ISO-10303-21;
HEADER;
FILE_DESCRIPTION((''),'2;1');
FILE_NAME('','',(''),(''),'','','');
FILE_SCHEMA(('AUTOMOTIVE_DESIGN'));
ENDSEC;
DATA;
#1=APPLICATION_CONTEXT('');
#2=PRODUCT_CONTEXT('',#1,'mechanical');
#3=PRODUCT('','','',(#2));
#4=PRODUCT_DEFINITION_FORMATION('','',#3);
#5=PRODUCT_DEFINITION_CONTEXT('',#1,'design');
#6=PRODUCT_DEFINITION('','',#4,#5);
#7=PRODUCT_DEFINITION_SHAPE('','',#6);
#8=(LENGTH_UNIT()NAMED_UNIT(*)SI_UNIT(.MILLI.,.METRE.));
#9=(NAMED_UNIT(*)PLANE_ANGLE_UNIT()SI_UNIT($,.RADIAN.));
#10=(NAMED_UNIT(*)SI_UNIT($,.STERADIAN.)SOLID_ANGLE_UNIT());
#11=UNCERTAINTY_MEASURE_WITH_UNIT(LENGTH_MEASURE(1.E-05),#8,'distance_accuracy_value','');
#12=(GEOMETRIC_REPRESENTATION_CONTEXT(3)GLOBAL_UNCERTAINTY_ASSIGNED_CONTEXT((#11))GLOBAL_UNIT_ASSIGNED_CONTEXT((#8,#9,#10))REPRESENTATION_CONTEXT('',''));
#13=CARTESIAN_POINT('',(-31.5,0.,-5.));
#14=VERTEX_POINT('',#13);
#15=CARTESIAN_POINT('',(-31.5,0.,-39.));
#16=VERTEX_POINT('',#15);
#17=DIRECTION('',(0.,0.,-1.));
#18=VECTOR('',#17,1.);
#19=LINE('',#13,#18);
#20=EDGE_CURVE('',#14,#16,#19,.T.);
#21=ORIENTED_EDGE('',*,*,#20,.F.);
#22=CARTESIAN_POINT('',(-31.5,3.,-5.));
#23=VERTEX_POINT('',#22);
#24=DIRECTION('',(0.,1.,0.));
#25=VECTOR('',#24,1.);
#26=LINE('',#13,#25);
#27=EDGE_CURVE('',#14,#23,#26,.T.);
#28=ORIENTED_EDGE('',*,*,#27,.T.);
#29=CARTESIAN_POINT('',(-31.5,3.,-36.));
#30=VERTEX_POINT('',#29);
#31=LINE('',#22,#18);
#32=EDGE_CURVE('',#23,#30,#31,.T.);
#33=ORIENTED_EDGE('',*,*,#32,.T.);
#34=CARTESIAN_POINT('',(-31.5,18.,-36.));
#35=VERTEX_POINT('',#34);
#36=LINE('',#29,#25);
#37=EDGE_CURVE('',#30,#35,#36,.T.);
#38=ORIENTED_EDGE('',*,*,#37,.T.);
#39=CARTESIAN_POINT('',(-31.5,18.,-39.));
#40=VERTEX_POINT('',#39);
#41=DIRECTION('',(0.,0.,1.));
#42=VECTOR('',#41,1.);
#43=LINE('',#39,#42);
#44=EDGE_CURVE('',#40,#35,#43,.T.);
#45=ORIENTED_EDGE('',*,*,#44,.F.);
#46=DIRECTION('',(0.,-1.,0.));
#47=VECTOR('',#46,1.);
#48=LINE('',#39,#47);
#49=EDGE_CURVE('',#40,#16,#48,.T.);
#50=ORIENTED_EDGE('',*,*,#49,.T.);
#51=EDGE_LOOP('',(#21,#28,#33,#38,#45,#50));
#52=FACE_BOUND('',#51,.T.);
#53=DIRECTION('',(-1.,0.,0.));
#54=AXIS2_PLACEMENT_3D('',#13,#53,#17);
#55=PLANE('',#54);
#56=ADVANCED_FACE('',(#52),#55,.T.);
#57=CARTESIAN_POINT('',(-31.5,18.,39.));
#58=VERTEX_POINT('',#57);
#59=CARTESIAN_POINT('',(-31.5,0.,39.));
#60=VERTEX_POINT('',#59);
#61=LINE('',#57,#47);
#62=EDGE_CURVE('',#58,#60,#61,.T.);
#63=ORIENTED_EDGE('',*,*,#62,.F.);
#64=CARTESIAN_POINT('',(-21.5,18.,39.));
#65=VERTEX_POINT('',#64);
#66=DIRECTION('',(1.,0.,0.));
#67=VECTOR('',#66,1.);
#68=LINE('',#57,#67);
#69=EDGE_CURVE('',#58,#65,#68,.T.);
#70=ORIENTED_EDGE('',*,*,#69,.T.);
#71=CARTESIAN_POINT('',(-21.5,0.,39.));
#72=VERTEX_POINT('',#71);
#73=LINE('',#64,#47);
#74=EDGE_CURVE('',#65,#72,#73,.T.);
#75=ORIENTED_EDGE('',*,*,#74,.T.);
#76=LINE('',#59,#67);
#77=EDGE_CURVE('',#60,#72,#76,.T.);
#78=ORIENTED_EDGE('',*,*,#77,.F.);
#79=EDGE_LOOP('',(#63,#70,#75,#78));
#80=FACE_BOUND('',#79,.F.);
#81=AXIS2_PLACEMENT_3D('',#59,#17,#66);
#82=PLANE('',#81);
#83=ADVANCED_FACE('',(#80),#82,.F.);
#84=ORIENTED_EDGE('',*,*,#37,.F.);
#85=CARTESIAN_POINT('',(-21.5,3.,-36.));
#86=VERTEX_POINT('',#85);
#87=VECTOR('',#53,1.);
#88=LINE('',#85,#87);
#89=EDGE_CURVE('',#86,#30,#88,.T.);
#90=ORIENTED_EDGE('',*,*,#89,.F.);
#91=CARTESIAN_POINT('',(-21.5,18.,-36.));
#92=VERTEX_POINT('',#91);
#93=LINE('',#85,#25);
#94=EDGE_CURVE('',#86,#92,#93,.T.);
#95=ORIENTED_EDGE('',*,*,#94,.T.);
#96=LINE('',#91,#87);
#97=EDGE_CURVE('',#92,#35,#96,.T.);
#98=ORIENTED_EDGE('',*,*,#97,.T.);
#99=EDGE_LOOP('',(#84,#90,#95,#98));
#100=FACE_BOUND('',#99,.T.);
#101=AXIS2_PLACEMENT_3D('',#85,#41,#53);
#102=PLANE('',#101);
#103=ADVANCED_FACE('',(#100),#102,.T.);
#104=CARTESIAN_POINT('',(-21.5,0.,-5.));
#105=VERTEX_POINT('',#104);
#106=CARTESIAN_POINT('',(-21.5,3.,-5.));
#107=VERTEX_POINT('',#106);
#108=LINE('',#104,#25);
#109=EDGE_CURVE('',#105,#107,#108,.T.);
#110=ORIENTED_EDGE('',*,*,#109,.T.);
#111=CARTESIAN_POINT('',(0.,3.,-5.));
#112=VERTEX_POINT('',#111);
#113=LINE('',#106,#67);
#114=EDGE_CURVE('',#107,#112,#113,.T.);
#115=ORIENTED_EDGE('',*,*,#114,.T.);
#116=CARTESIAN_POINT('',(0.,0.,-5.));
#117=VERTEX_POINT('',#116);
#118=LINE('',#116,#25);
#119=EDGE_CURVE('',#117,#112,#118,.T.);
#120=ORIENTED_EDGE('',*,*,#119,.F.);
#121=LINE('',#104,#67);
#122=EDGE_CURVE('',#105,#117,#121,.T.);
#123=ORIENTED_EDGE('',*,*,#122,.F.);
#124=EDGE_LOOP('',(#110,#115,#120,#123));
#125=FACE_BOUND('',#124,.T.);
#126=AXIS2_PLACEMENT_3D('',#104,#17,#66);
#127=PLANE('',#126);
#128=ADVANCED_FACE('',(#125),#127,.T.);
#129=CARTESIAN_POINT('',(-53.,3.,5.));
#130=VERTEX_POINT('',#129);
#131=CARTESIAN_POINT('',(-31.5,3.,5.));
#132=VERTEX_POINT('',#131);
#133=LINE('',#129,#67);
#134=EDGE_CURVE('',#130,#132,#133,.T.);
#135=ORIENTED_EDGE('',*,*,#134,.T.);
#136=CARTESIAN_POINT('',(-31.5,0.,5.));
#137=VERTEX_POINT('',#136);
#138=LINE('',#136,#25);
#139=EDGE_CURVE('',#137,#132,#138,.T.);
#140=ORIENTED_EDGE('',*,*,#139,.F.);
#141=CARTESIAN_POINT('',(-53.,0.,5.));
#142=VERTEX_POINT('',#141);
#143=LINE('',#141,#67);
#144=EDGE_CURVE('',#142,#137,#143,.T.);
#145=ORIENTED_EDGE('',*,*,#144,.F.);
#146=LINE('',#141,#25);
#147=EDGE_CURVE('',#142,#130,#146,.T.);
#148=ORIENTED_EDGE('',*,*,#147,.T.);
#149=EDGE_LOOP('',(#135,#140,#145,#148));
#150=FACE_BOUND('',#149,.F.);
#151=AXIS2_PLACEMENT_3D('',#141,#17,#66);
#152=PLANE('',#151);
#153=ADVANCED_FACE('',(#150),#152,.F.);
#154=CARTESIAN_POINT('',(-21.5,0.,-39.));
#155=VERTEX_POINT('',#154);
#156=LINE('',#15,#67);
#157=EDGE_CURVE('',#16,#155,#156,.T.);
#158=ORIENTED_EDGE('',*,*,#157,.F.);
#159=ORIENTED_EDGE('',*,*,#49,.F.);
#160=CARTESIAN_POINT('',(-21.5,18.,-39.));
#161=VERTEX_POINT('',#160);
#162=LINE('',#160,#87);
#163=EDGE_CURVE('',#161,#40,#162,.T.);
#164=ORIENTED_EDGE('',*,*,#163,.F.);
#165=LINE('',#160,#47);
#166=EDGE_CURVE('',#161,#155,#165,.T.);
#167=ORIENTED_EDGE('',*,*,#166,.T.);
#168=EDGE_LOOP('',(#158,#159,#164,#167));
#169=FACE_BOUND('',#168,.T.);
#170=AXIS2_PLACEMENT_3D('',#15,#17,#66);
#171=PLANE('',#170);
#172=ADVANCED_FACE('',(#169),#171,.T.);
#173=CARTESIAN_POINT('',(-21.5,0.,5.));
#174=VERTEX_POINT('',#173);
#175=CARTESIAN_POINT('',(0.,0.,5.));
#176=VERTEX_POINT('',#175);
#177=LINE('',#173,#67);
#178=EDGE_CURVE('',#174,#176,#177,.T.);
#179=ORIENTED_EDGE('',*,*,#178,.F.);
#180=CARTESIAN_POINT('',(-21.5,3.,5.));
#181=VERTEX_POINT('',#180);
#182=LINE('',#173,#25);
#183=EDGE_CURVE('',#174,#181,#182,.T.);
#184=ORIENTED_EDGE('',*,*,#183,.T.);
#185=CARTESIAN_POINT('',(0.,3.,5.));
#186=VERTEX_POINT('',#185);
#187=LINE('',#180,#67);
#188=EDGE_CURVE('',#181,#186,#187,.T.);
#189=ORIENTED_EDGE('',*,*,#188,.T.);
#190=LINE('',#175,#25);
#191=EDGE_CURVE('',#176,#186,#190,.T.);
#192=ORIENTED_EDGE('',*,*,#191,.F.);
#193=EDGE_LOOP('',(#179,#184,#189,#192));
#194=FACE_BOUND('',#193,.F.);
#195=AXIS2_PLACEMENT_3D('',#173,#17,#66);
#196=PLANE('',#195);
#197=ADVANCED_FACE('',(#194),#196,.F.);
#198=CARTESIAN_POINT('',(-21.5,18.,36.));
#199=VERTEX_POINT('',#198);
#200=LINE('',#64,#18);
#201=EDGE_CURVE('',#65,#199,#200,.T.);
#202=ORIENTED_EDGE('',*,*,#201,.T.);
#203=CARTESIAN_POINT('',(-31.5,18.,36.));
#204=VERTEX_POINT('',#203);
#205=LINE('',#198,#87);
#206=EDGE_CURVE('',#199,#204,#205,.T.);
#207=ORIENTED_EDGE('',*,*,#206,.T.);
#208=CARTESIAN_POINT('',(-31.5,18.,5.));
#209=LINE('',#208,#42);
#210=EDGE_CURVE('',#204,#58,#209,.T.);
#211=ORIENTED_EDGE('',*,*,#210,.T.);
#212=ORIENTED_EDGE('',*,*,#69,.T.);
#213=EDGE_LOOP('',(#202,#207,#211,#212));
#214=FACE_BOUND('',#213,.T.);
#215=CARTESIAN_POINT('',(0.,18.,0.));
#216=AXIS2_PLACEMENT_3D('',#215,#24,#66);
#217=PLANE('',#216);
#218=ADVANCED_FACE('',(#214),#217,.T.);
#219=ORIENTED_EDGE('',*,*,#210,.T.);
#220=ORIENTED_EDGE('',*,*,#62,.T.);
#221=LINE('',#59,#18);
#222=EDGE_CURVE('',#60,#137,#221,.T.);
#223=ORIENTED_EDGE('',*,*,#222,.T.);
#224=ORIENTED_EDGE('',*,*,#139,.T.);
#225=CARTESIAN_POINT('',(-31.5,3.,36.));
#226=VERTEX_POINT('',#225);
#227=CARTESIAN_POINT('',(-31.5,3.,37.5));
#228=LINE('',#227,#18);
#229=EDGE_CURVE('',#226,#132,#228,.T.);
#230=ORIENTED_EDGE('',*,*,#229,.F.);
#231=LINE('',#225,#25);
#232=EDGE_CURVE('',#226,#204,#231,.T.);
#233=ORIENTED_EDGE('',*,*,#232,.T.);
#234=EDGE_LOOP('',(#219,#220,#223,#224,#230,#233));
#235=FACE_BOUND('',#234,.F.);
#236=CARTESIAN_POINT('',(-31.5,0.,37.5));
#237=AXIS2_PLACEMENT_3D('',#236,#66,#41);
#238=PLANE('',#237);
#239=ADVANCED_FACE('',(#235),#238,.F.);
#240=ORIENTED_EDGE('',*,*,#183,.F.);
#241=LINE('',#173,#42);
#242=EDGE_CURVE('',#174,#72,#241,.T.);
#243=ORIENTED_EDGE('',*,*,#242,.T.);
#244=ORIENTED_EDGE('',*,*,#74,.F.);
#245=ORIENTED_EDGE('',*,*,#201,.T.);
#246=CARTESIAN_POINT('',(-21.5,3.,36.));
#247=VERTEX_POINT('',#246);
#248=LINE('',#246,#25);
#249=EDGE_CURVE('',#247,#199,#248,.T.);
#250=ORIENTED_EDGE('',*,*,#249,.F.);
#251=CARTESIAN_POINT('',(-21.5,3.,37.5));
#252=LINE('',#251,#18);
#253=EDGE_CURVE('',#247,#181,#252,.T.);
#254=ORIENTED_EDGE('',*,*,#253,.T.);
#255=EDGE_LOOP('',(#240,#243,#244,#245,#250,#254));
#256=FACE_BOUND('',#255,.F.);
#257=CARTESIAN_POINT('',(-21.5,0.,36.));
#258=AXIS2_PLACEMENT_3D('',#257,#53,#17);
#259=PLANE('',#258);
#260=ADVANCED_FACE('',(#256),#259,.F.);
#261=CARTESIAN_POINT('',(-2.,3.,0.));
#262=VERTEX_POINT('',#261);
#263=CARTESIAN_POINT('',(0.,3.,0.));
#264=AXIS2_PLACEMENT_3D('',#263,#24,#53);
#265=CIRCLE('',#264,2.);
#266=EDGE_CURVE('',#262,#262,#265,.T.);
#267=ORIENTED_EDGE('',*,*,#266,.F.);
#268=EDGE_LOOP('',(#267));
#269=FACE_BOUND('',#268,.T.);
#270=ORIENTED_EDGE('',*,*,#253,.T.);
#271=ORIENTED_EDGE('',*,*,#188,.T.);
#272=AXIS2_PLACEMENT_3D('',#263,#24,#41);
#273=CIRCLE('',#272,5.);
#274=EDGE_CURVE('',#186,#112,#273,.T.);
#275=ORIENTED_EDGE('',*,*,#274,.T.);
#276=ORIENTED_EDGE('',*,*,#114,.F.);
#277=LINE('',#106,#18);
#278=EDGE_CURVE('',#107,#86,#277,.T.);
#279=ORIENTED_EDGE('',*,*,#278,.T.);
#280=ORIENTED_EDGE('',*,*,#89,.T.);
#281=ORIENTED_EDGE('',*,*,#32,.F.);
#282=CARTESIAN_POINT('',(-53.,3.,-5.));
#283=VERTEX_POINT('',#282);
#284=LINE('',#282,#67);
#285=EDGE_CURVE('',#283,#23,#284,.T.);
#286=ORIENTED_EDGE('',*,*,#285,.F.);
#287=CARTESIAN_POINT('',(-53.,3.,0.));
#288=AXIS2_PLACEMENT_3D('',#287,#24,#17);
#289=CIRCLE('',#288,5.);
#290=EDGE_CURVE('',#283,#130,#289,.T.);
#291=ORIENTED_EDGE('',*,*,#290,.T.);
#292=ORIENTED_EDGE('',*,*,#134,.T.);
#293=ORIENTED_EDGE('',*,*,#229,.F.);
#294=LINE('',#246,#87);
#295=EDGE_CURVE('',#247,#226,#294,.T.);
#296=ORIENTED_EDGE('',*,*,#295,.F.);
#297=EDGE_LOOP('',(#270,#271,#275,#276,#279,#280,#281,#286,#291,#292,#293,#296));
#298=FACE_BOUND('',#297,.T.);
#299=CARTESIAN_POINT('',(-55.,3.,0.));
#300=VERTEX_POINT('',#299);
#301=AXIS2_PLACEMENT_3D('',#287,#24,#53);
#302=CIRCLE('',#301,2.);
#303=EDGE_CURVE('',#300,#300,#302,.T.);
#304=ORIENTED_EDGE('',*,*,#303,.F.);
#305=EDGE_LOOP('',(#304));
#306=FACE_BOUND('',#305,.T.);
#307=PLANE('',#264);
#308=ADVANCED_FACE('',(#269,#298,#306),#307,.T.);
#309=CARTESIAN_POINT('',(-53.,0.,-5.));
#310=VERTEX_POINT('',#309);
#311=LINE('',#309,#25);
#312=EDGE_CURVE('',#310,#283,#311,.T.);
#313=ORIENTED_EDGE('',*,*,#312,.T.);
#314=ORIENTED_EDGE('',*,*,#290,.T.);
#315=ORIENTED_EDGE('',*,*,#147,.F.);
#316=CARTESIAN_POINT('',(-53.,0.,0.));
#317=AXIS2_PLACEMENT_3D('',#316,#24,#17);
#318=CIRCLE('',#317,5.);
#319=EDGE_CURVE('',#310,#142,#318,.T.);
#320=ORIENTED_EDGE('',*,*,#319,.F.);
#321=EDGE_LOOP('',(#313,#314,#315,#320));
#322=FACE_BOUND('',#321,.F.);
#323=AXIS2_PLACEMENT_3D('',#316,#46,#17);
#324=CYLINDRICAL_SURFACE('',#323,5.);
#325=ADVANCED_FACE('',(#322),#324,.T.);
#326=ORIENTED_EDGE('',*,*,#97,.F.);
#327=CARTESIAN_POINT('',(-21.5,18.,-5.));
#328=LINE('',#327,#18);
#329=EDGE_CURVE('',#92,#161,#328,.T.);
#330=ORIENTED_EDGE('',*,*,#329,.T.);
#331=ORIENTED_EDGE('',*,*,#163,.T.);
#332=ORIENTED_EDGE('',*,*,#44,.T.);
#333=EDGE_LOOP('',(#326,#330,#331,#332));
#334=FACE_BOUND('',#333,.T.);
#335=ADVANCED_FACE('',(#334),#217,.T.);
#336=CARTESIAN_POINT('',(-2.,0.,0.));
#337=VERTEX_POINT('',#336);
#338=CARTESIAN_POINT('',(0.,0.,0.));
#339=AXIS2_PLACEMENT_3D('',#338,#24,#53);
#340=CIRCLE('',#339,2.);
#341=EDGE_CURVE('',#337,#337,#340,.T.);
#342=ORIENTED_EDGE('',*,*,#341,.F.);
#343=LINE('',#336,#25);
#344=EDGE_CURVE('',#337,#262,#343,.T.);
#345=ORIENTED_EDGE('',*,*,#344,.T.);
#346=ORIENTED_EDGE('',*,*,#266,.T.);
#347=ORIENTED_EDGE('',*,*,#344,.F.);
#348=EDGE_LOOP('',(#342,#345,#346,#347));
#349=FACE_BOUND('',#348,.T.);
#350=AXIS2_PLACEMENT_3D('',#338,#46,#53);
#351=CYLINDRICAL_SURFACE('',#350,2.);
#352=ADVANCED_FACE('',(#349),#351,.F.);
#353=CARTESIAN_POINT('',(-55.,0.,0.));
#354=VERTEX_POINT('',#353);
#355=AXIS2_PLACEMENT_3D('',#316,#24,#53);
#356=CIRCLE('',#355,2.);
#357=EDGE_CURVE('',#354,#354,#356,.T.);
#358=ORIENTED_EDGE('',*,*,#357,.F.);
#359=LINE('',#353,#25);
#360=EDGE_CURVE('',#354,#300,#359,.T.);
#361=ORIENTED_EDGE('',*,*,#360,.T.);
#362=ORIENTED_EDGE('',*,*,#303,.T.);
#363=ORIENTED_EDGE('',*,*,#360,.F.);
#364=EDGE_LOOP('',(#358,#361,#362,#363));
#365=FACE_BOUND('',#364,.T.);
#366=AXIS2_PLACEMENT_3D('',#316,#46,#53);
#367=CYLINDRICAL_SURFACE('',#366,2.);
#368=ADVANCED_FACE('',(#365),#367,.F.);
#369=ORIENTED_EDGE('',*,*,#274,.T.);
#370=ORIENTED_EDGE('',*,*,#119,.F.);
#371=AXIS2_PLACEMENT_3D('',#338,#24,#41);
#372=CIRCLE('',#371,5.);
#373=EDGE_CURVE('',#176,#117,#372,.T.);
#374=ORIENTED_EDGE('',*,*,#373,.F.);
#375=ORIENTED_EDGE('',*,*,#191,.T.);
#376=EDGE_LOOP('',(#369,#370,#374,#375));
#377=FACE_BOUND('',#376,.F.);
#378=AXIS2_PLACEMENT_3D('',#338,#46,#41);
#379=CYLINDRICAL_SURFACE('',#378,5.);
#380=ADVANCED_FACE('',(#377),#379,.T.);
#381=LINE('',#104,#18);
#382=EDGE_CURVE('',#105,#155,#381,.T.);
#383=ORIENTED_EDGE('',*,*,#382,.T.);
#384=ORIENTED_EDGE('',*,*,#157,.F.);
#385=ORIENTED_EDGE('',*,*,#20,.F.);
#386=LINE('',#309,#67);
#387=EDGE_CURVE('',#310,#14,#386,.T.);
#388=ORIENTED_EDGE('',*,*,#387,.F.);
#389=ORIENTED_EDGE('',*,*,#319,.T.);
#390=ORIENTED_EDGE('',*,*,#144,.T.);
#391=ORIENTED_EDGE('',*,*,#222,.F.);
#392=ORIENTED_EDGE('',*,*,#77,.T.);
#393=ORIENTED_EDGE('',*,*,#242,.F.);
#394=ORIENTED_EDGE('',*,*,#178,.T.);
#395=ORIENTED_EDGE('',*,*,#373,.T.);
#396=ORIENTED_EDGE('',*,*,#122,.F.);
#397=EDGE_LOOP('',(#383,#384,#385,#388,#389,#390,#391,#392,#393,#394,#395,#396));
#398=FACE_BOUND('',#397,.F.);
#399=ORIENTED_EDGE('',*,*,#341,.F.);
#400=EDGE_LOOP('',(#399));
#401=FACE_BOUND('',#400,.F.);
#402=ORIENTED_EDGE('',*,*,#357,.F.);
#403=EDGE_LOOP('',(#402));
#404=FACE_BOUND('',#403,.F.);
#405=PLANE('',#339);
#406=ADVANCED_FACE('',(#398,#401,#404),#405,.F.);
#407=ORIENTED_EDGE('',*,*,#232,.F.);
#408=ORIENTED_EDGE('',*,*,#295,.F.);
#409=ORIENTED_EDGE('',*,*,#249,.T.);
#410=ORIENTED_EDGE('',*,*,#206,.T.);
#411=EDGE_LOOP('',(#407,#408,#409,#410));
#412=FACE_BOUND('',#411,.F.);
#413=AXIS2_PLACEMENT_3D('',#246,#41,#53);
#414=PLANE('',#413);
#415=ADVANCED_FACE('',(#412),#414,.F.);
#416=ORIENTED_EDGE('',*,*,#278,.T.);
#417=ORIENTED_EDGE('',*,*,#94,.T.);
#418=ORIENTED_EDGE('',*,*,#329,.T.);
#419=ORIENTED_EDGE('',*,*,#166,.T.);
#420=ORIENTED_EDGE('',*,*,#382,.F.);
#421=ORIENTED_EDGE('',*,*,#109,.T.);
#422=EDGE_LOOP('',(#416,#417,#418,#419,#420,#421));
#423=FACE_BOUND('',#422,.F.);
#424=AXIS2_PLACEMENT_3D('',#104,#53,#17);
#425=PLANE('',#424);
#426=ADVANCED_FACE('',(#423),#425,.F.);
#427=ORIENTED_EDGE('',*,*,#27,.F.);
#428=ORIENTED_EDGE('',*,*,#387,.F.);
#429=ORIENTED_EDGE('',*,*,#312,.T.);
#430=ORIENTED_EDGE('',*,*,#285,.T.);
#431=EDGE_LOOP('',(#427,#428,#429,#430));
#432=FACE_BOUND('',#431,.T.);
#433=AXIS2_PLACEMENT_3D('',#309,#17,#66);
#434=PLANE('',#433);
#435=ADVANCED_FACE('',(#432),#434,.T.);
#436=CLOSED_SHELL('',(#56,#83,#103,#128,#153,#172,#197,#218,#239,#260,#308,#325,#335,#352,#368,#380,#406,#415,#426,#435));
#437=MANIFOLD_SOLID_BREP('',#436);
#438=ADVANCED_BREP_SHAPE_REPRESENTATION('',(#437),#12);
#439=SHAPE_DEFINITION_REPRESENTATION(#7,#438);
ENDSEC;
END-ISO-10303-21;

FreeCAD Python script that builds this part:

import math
import FreeCAD as App
import Part
import Sketcher
Q = App.Units.Quantity

doc = App.newDocument("Part")
params = doc.addObject("Spreadsheet::Sheet", "Params")
for row, (alias, value) in enumerate([
    ("sketch1_diameter", "4 mm"),
    ("sketch1_radius", "5 mm"),
    ("sketch1_width", "10 mm"),
    ("sketch1_height", "34 mm"),
    ("sketch1_width2", "21.5 mm"),
    ("pad1_length", "3 mm"),
    ("sketch2_height", "3 mm"),
    ("sketch2_width", "10 mm"),
    ("pad2_length", "15 mm"),
], start=1):
    params.set(f"A{row}", alias)
    params.set(f"B{row}", "=" + value)
    params.setAlias(f"B{row}", alias)

body = doc.addObject("PartDesign::Body", "Body")

sketch1 = body.newObject("Sketcher::SketchObject", "Sketch")
sketch1.AttachmentSupport = (doc.getObject("XZ_Plane"), [""])
sketch1.MapMode = "FlatFace"
sketch1.addGeometry([
    Part.LineSegment(App.Vector(-31.5, -5, 0), App.Vector(-53, -5, 0)),
    Part.ArcOfCircle(Part.Circle(App.Vector(-53, 0, 0), App.Vector(0, 0, 1), 5), math.radians(90), math.radians(270)),
    Part.LineSegment(App.Vector(-53, 5, 0), App.Vector(-31.5, 5, 0)),
    Part.LineSegment(App.Vector(-31.5, 5, 0), App.Vector(-31.5, 39, 0)),
    Part.LineSegment(App.Vector(-31.5, 39, 0), App.Vector(-21.5, 39, 0)),
    Part.LineSegment(App.Vector(-21.5, 39, 0), App.Vector(-21.5, 5, 0)),
    Part.LineSegment(App.Vector(-21.5, 5, 0), App.Vector(0, 5, 0)),
    Part.ArcOfCircle(Part.Circle(App.Vector(0, 0, 0), App.Vector(0, 0, 1), 5), math.radians(-90), math.radians(90)),
    Part.LineSegment(App.Vector(0, -5, 0), App.Vector(-21.5, -5, 0)),
    Part.LineSegment(App.Vector(-21.5, -5, 0), App.Vector(-21.5, -39, 0)),
    Part.LineSegment(App.Vector(-21.5, -39, 0), App.Vector(-31.5, -39, 0)),
    Part.LineSegment(App.Vector(-31.5, -39, 0), App.Vector(-31.5, -5, 0)),
    Part.Circle(App.Vector(0, 0, 0), App.Vector(0, 0, 1), 2),
    Part.Circle(App.Vector(-53, 0, 0), App.Vector(0, 0, 1), 2),
], False)
sketch1.addConstraint([
    Sketcher.Constraint("Tangent", 0, 2, 1, 2),
    Sketcher.Constraint("Tangent", 1, 1, 2, 1),
    Sketcher.Constraint("Coincident", 2, 2, 3, 1),
    Sketcher.Constraint("Coincident", 3, 2, 4, 1),
    Sketcher.Constraint("Coincident", 4, 2, 5, 1),
    Sketcher.Constraint("Coincident", 5, 2, 6, 1),
    Sketcher.Constraint("Tangent", 6, 2, 7, 2),
    Sketcher.Constraint("Tangent", 7, 1, 8, 1),
    Sketcher.Constraint("Coincident", 8, 2, 9, 1),
    Sketcher.Constraint("Coincident", 9, 2, 10, 1),
    Sketcher.Constraint("Coincident", 10, 2, 11, 1),
    Sketcher.Constraint("Coincident", 11, 2, 0, 1),
    Sketcher.Constraint("Horizontal", 0),
    Sketcher.Constraint("Horizontal", 2),
    Sketcher.Constraint("Vertical", 3),
    Sketcher.Constraint("Horizontal", 4),
    Sketcher.Constraint("Vertical", 5),
    Sketcher.Constraint("Horizontal", 6),
    Sketcher.Constraint("Horizontal", 8),
    Sketcher.Constraint("Vertical", 9),
    Sketcher.Constraint("Horizontal", 10),
    Sketcher.Constraint("Vertical", 11),
    Sketcher.Constraint("Coincident", 7, 3, -1, 1),
    Sketcher.Constraint("Coincident", 12, 3, -1, 1),
    Sketcher.Constraint("Coincident", 13, 3, 1, 3),
    Sketcher.Constraint("Equal", 1, 7),
    Sketcher.Constraint("Equal", 12, 13),
    Sketcher.Constraint("Symmetric", 4, 2, 9, 2, -1),
    Sketcher.Constraint("Symmetric", 2, 2, 11, 2, -1),
    Sketcher.Constraint("Equal", 2, 6),
    Sketcher.Constraint("Diameter", 12, Q("4 mm")),
    Sketcher.Constraint("Radius", 1, Q("5 mm")),
    Sketcher.Constraint("DistanceX", 4, 1, 4, 2, Q("10 mm")),
    Sketcher.Constraint("DistanceY", 3, 1, 3, 2, Q("34 mm")),
    Sketcher.Constraint("DistanceX", 0, 2, 0, 1, Q("21.5 mm")),
])
sketch1.setExpression("Constraints[30]", "Params.sketch1_diameter")
sketch1.setExpression("Constraints[31]", "Params.sketch1_radius")
sketch1.setExpression("Constraints[32]", "Params.sketch1_width")
sketch1.setExpression("Constraints[33]", "Params.sketch1_height")
sketch1.setExpression("Constraints[34]", "Params.sketch1_width2")
pad1 = body.newObject("PartDesign::Pad", "Pad")
pad1.Profile = sketch1
pad1.setExpression("Length", "Params.pad1_length")
pad1.Reversed = True

sketch2 = body.newObject("Sketcher::SketchObject", "Sketch001")
sketch2.AttachmentSupport = (doc.getObject("XZ_Plane"), [""])
sketch2.MapMode = "FlatFace"
sketch2.AttachmentOffset = App.Placement(App.Vector(0, 0, -3), App.Rotation())
sketch2.addGeometry([
    Part.LineSegment(App.Vector(-21.5, 36, 0), App.Vector(-31.5, 36, 0)),
    Part.LineSegment(App.Vector(-31.5, 36, 0), App.Vector(-31.5, 39, 0)),
    Part.LineSegment(App.Vector(-31.5, 39, 0), App.Vector(-21.5, 39, 0)),
    Part.LineSegment(App.Vector(-21.5, 39, 0), App.Vector(-21.5, 36, 0)),
    Part.LineSegment(App.Vector(-31.5, -39, 0), App.Vector(-31.5, -36, 0)),
    Part.LineSegment(App.Vector(-31.5, -36, 0), App.Vector(-21.5, -36, 0)),
    Part.LineSegment(App.Vector(-21.5, -36, 0), App.Vector(-21.5, -39, 0)),
    Part.LineSegment(App.Vector(-21.5, -39, 0), App.Vector(-31.5, -39, 0)),
], False)
sketch2.addConstraint([
    Sketcher.Constraint("Coincident", 0, 2, 1, 1),
    Sketcher.Constraint("Coincident", 1, 2, 2, 1),
    Sketcher.Constraint("Coincident", 2, 2, 3, 1),
    Sketcher.Constraint("Coincident", 3, 2, 0, 1),
    Sketcher.Constraint("Coincident", 4, 2, 5, 1),
    Sketcher.Constraint("Coincident", 5, 2, 6, 1),
    Sketcher.Constraint("Coincident", 6, 2, 7, 1),
    Sketcher.Constraint("Coincident", 7, 2, 4, 1),
    Sketcher.Constraint("Horizontal", 0),
    Sketcher.Constraint("Vertical", 1),
    Sketcher.Constraint("Horizontal", 2),
    Sketcher.Constraint("Vertical", 3),
    Sketcher.Constraint("Vertical", 4),
    Sketcher.Constraint("Horizontal", 5),
    Sketcher.Constraint("Vertical", 6),
    Sketcher.Constraint("Horizontal", 7),
    Sketcher.Constraint("Symmetric", 0, 2, 4, 2, -1),
    Sketcher.Constraint("Symmetric", 2, 2, 6, 2, -1),
    Sketcher.Constraint("DistanceY", 1, 1, 1, 2, Q("3 mm")),
    Sketcher.Constraint("DistanceX", 0, 2, 0, 1, Q("10 mm")),
    Sketcher.Constraint("DistanceY", -1, 1, 0, 2, Q("36 mm")),
    Sketcher.Constraint("DistanceX", 0, 2, -1, 1, Q("31.5 mm")),
])
sketch2.setExpression("Constraints[18]", "Params.sketch2_height")
sketch2.setExpression("Constraints[19]", "Params.sketch2_width")
pad2 = body.newObject("PartDesign::Pad", "Pad001")
pad2.Profile = sketch2
pad2.setExpression("Length", "Params.pad2_length")
pad2.Reversed = True

doc.recompute()
